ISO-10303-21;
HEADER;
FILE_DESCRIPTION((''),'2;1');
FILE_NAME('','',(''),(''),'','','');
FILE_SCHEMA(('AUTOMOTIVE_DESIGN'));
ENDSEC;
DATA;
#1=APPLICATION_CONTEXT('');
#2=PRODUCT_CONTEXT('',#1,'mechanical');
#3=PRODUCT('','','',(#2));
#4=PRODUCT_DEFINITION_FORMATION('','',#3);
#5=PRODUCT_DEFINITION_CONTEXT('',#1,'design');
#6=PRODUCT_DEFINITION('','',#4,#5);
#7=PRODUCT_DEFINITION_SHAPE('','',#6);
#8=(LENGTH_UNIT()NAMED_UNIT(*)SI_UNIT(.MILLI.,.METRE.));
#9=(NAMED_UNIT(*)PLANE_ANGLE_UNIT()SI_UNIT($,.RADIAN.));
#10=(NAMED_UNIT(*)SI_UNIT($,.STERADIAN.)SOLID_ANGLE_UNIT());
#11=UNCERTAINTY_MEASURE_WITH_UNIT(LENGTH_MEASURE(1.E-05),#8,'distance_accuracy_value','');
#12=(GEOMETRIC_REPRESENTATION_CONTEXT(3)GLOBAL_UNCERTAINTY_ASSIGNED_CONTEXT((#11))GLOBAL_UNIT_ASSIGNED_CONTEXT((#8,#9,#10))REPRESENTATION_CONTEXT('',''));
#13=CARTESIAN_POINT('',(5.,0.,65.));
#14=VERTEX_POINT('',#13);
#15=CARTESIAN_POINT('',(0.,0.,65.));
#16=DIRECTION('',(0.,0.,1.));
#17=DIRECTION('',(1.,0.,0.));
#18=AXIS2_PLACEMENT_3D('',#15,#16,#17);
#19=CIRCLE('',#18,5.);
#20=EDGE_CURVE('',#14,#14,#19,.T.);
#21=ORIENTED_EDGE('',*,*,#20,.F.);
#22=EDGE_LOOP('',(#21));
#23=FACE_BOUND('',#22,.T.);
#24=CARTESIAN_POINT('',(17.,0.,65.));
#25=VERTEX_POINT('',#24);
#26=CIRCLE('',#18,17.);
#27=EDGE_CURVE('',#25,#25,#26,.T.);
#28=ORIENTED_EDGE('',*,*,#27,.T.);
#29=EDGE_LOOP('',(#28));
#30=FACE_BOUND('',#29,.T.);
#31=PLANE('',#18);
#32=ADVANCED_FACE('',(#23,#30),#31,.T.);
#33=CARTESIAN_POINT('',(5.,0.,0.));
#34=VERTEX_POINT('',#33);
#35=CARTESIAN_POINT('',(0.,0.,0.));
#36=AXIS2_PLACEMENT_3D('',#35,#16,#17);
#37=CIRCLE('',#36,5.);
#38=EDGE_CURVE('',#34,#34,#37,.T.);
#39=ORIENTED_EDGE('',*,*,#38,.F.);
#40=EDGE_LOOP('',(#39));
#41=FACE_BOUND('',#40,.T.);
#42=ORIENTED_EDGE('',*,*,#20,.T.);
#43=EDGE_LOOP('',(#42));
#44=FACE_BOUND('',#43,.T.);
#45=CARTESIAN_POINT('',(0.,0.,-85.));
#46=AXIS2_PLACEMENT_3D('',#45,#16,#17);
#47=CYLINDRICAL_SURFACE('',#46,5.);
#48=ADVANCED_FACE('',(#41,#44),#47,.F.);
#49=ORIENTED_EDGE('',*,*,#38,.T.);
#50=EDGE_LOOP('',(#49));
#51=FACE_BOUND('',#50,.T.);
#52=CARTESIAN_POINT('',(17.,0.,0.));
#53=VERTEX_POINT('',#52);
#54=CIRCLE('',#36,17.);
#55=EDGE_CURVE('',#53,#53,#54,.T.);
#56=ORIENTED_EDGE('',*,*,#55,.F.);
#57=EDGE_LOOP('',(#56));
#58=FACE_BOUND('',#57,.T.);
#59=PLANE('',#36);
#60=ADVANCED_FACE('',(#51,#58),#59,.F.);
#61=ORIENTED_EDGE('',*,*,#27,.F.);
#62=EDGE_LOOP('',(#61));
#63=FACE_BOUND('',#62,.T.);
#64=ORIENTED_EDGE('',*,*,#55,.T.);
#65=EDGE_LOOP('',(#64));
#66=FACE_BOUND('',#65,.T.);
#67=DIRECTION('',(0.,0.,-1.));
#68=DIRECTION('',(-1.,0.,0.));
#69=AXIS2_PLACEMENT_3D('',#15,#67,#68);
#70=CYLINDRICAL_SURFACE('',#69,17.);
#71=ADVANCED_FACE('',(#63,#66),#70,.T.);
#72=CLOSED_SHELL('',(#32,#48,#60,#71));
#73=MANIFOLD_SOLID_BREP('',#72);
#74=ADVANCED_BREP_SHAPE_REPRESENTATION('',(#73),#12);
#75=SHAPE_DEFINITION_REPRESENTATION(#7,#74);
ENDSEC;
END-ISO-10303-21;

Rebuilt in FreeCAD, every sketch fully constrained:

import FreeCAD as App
import Part
import Sketcher
Q = App.Units.Quantity

doc = App.newDocument("Part")
body = doc.addObject("PartDesign::Body", "Body")

sketch1 = body.newObject("Sketcher::SketchObject", "Sketch")
sketch1.AttachmentSupport = (doc.getObject("XY_Plane"), [""])
sketch1.MapMode = "FlatFace"
sketch1.addGeometry(Part.Circle(App.Vector(0, 0, 0), App.Vector(0, 0, 1), 17), False)
sketch1.addConstraint([
    Sketcher.Constraint("Coincident", 0, 3, -1, 1),
    Sketcher.Constraint("Diameter", 0, Q("34 mm")),
])
pad1 = body.newObject("PartDesign::Pad", "Pad")
pad1.Profile = sketch1
pad1.Length = 65

sketch2 = body.newObject("Sketcher::SketchObject", "Sketch001")
sketch2.AttachmentSupport = (doc.getObject("XY_Plane"), [""])
sketch2.MapMode = "FlatFace"
sketch2.AttachmentOffset = App.Placement(App.Vector(0, 0, 65), App.Rotation())
sketch2.addGeometry(Part.Circle(App.Vector(0, 0, 0), App.Vector(0, 0, 1), 5), False)
sketch2.addConstraint([
    Sketcher.Constraint("Coincident", 0, 3, -1, 1),
    Sketcher.Constraint("Diameter", 0, Q("10 mm")),
])
pocket1 = body.newObject("PartDesign::Pocket", "Pocket")
pocket1.Profile = sketch2
pocket1.Length = 150

doc.recompute()
